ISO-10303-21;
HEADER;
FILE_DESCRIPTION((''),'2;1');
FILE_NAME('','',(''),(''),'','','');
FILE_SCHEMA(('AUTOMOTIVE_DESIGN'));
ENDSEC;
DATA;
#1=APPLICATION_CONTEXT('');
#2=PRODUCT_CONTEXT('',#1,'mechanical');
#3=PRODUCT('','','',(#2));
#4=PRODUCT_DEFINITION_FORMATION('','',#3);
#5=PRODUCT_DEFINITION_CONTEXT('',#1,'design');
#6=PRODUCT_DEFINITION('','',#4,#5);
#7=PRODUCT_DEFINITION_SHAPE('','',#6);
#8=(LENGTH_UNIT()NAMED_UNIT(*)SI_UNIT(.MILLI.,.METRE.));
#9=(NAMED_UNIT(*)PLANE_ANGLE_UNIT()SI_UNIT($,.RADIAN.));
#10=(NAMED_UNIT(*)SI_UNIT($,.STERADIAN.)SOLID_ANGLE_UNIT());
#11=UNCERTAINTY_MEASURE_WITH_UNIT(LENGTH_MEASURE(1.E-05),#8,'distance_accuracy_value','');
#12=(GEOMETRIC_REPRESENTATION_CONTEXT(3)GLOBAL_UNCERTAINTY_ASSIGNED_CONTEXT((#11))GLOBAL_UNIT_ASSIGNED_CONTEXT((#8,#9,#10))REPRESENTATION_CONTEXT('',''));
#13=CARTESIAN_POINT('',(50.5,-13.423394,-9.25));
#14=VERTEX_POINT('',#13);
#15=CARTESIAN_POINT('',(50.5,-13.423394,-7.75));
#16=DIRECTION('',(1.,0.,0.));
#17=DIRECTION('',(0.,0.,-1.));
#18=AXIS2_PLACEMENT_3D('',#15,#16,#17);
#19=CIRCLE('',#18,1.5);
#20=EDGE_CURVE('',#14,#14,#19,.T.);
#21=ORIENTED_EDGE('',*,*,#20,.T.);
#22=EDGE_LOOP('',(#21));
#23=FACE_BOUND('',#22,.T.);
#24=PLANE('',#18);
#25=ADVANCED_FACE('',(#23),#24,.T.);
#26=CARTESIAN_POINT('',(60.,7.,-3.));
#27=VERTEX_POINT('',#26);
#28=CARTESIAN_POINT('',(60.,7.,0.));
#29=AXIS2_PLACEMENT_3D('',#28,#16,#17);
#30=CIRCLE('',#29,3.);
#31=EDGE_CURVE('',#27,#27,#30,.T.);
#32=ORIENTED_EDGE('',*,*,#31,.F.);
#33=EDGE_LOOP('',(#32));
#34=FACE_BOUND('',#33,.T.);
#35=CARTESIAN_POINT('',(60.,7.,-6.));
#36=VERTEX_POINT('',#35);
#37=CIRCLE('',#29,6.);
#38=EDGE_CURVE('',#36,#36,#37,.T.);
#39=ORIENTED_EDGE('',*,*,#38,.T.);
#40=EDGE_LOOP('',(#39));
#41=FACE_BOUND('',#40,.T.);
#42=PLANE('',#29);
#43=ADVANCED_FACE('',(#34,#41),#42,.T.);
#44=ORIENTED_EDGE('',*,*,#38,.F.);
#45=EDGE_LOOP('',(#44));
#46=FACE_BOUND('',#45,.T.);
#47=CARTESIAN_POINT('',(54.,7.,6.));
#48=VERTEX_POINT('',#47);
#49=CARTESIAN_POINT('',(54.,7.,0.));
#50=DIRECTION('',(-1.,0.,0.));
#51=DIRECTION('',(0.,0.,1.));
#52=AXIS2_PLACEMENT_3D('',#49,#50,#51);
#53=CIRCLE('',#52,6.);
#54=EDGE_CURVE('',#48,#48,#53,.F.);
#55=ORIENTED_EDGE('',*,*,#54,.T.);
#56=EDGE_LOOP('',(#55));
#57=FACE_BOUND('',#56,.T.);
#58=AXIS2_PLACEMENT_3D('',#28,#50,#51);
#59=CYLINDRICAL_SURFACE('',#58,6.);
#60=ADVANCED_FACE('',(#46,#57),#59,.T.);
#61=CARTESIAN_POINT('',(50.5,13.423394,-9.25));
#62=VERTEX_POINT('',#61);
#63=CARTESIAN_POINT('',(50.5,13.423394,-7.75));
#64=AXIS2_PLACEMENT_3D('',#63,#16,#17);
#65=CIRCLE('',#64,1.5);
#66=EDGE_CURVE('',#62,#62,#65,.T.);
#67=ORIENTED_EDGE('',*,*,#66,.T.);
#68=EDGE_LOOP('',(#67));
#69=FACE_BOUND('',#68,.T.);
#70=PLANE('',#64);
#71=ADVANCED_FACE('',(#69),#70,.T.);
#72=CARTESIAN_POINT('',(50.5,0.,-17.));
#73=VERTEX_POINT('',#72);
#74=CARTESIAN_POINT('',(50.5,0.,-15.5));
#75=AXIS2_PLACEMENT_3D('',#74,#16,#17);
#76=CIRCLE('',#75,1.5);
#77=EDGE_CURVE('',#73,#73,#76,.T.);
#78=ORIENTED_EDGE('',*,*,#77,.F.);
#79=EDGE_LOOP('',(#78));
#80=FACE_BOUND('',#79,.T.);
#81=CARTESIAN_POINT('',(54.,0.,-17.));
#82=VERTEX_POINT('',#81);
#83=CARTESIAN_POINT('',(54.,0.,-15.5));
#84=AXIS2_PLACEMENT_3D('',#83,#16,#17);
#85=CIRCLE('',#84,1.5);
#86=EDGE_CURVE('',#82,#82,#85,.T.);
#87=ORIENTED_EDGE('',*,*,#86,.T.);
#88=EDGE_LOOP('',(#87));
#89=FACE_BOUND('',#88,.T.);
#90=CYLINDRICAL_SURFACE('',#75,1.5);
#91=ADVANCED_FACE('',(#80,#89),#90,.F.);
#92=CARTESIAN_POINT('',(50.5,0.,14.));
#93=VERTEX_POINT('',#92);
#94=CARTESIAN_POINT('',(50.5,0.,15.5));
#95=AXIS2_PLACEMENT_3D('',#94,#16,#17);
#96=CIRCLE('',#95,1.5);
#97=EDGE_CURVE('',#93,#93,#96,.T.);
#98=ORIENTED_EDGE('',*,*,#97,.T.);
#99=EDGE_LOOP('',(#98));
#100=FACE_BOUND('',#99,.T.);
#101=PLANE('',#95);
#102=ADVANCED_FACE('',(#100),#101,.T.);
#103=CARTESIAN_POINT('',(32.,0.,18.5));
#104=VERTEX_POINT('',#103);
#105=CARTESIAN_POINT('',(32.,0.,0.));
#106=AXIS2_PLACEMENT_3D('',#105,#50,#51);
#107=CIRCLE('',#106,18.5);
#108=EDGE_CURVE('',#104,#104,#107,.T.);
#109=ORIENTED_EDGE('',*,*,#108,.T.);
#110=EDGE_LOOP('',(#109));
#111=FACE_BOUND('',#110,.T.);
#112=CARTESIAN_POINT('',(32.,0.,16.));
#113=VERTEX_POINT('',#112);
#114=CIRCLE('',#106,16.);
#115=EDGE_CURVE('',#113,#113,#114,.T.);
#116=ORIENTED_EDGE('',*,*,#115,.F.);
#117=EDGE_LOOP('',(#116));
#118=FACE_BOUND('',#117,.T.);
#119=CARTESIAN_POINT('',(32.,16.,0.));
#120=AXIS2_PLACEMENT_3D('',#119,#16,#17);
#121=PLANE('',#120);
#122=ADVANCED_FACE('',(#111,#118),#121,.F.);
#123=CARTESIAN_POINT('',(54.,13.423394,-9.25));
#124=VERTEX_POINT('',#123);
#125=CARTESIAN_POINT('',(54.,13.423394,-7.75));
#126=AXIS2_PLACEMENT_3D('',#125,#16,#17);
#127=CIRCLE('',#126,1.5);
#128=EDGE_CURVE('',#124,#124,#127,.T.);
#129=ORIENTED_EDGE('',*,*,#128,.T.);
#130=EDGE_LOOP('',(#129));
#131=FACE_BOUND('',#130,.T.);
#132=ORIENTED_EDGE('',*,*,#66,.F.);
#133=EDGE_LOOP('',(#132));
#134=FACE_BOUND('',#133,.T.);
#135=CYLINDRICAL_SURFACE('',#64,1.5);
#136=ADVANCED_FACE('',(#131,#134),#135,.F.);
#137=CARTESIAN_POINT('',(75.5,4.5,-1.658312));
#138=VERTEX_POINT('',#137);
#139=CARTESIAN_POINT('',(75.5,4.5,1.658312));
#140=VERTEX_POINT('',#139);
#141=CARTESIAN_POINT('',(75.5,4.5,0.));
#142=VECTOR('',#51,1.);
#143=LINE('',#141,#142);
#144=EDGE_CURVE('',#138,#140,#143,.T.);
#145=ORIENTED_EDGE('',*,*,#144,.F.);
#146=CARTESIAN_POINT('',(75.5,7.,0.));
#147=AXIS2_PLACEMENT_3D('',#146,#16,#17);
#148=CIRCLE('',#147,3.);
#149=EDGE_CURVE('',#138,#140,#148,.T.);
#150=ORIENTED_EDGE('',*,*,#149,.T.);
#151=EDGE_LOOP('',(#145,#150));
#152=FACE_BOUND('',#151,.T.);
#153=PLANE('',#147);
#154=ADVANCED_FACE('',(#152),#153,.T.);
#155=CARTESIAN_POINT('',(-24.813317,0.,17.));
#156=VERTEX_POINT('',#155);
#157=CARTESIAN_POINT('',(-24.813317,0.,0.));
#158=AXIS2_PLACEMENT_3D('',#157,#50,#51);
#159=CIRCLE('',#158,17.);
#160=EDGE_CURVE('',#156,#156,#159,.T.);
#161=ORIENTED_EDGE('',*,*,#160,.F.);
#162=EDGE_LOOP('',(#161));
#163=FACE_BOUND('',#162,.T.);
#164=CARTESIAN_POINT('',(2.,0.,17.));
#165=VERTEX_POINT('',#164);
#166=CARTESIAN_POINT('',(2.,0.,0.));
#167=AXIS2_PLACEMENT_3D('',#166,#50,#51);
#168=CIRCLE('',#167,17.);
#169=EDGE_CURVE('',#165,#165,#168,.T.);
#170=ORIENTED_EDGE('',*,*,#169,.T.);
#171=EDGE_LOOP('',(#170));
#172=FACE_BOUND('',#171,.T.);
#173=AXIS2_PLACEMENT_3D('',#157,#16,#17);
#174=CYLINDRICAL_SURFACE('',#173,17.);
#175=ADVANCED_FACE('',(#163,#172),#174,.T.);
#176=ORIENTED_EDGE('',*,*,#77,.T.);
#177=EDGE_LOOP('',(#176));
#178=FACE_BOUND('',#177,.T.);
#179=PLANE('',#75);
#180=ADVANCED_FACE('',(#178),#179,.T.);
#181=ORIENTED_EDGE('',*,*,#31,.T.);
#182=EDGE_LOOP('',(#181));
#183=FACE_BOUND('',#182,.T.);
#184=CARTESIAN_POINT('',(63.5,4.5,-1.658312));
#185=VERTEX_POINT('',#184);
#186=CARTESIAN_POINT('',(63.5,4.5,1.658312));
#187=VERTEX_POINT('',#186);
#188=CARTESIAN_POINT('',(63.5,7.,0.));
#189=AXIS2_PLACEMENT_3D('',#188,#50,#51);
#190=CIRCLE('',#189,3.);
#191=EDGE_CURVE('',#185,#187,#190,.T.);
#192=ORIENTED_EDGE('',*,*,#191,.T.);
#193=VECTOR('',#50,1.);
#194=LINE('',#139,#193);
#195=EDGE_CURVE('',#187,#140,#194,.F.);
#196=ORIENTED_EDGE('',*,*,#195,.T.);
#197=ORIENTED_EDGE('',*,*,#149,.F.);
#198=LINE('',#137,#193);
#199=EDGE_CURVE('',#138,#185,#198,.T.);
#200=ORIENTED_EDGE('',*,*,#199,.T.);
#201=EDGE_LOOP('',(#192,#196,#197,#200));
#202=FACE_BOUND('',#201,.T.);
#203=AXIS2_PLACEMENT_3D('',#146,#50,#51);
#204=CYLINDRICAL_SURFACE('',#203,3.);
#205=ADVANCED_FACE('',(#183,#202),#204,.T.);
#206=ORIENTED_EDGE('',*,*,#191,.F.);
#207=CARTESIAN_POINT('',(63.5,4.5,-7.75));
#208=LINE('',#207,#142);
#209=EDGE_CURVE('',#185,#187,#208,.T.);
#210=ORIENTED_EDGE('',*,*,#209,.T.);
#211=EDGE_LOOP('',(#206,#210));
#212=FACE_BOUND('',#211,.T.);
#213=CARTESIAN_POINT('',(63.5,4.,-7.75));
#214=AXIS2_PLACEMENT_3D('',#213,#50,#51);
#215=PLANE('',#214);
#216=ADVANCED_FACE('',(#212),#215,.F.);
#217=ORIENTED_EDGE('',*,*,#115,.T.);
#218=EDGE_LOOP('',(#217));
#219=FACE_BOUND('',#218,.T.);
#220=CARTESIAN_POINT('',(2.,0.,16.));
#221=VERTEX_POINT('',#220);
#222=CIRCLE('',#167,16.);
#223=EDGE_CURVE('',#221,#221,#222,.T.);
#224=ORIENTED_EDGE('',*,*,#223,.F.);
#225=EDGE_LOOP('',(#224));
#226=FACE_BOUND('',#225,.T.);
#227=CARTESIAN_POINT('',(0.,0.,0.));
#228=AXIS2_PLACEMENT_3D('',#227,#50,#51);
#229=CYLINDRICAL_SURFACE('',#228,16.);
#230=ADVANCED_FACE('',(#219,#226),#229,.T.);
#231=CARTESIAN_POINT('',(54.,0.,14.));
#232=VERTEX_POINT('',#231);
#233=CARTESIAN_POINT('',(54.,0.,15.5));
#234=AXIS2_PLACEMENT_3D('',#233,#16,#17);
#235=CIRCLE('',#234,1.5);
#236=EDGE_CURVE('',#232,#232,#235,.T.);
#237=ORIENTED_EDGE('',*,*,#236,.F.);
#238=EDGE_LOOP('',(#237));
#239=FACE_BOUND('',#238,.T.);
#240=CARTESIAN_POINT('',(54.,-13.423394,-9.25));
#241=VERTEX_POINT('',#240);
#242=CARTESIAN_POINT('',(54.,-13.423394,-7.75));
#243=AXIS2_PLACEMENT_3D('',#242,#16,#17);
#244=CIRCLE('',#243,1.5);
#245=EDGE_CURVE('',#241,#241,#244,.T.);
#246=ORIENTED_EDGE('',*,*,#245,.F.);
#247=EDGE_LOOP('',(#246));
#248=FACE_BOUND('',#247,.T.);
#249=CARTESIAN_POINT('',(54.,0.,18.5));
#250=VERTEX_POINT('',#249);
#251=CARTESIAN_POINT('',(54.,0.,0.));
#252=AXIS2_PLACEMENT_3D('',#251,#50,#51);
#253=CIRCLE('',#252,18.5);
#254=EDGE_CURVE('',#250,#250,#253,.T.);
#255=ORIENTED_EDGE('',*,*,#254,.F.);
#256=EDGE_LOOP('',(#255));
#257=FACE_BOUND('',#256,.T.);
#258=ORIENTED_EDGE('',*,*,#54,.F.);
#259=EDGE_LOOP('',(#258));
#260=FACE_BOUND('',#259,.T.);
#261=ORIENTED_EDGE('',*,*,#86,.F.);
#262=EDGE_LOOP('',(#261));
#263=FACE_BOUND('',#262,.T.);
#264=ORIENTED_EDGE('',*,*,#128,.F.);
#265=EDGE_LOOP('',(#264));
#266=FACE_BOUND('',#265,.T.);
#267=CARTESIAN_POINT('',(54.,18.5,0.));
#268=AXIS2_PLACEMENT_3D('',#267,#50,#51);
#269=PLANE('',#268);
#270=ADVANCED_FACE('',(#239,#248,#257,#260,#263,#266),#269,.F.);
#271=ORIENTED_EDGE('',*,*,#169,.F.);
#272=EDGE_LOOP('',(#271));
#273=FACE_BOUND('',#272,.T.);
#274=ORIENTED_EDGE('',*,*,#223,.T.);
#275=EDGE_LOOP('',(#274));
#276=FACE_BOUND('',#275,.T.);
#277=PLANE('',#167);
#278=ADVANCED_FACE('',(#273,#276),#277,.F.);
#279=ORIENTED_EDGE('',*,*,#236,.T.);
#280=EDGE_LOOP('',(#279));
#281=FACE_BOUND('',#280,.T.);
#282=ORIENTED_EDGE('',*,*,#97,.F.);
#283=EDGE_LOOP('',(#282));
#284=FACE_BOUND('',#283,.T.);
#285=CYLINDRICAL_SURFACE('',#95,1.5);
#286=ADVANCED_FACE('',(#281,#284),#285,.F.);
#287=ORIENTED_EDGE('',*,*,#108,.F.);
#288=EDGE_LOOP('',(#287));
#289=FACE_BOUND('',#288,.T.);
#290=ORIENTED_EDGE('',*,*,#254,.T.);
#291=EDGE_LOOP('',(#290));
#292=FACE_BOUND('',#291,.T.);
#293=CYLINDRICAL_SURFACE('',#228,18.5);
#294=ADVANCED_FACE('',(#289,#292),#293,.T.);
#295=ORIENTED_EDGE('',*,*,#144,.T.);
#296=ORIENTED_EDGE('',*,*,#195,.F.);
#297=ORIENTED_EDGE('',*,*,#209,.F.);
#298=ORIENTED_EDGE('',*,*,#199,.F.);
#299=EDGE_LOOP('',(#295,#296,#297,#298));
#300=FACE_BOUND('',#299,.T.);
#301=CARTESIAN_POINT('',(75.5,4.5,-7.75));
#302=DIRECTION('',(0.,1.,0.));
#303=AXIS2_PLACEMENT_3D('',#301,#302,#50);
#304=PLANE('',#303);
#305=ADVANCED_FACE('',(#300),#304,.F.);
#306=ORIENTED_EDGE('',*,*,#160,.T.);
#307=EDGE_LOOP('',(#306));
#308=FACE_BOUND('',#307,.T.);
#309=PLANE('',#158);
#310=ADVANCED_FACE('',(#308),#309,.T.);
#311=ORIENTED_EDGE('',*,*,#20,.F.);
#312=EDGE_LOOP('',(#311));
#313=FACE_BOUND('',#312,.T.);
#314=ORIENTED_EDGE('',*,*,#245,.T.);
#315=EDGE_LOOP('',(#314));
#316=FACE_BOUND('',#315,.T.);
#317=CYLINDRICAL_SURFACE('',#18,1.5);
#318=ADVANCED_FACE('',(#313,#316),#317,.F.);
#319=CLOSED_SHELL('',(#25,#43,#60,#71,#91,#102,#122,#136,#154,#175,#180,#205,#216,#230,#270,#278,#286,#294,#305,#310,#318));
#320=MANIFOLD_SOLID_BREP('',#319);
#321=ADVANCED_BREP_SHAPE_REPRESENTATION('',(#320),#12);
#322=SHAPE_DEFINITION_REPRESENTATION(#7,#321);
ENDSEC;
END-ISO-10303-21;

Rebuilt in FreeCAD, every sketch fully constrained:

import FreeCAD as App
import Part
import Sketcher
from FreeCAD import Vector


def add_polygon(sketch, points):
    """Adds a closed chain of lines whose ends are joined by coincident constraints."""
    first, n = sketch.GeometryCount, len(points)
    for a, b in zip(points, points[1:] + points[:1]):
        sketch.addGeometry(Part.LineSegment(App.Vector(*a, 0), App.Vector(*b, 0)), False)
    for i in range(n):
        sketch.addConstraint(Sketcher.Constraint("Coincident", first + i, 2, first + (i + 1) % n, 1))

doc = App.newDocument("Part")
body = doc.addObject("PartDesign::Body", "Body")

# Sketch on XY plane
sketch1 = body.newObject("Sketcher::SketchObject", "Sketch")
sketch1.AttachmentSupport = (doc.getObject("XY_Plane"), [""])
sketch1.MapMode = "FlatFace"
add_polygon(sketch1, [(0, 2), (0, 0), (54, 0), (54, 18.5), (32, 18.5), (32, 16), (2, 16), (2, 2)])  # lines 0-7
sketch1.addConstraint([
    Sketcher.Constraint("Vertical", 0),
    Sketcher.Constraint("Horizontal", 1),
    Sketcher.Constraint("Vertical", 2),
    Sketcher.Constraint("Horizontal", 3),
    Sketcher.Constraint("Vertical", 4),
    Sketcher.Constraint("Horizontal", 5),
    Sketcher.Constraint("Vertical", 6),
    Sketcher.Constraint("Horizontal", 7),
    Sketcher.Constraint("Coincident", 0, 2, -1, 1),
    Sketcher.Constraint("Equal", 7, 0),
    Sketcher.Constraint("DistanceX", 1, 1, 1, 2, 54.0),
    Sketcher.Constraint("DistanceX", 3, 2, 3, 1, 22.0),
    Sketcher.Constraint("DistanceX", 5, 2, 5, 1, 30.0),
    Sketcher.Constraint("DistanceY", 6, 2, 6, 1, 14.0),
    Sketcher.Constraint("DistanceY", 2, 1, 2, 2, 18.5),
])
revolution = body.newObject("PartDesign::Revolution", "Revolution")
revolution.Profile = sketch1
revolution.ReferenceAxis = (sketch1, ["H_Axis"])
revolution.Angle = 360

# Sketch on YZ plane
sketch2 = body.newObject("Sketcher::SketchObject", "Sketch001")
sketch2.AttachmentSupport = (doc.getObject("YZ_Plane"), [""])
sketch2.MapMode = "FlatFace"
sketch2.AttachmentOffset = App.Placement(Vector(0, 0, 54), App.Rotation())
sketch2.addGeometry(Part.Circle(Vector(7, 0, 0), Vector(0, 0, 1), 6), False)
sketch2.addConstraint([
    Sketcher.Constraint("PointOnObject", 0, 3, -1),
    Sketcher.Constraint("Diameter", 0, 12.0),
    Sketcher.Constraint("DistanceX", -1, 1, 0, 3, 7.0),
])
pad1 = body.newObject("PartDesign::Pad", "Pad")
pad1.Profile = sketch2
pad1.Length = 6

# Sketch on YZ plane
sketch3 = body.newObject("Sketcher::SketchObject", "Sketch002")
sketch3.AttachmentSupport = (doc.getObject("YZ_Plane"), [""])
sketch3.MapMode = "FlatFace"
sketch3.AttachmentOffset = App.Placement(Vector(0, 0, 60), App.Rotation())
sketch3.addGeometry(Part.Circle(Vector(7, 0, 0), Vector(0, 0, 1), 3), False)
sketch3.addConstraint([
    Sketcher.Constraint("PointOnObject", 0, 3, -1),
    Sketcher.Constraint("Diameter", 0, 6.0),
    Sketcher.Constraint("DistanceX", -1, 1, 0, 3, 7.0),
])
pad2 = body.newObject("PartDesign::Pad", "Pad001")
pad2.Profile = sketch3
pad2.Length = 15.5

# Sketch on XY plane
sketch4 = body.newObject("Sketcher::SketchObject", "Sketch003")
sketch4.AttachmentSupport = (doc.getObject("XY_Plane"), [""])
sketch4.MapMode = "FlatFace"
add_polygon(sketch4, [(63.5, 4.5), (63.5, 4), (75.5, 4), (75.5, 4.5)])  # lines 0-3
sketch4.addConstraint([
    Sketcher.Constraint("Vertical", 0),
    Sketcher.Constraint("Horizontal", 1),
    Sketcher.Constraint("Vertical", 2),
    Sketcher.Constraint("Horizontal", 3),
    Sketcher.Constraint("DistanceX", 1, 1, 1, 2, 12.0),
    Sketcher.Constraint("DistanceY", 0, 2, 0, 1, 0.5),
    Sketcher.Constraint("DistanceY", -1, 1, 0, 2, 4.0),
    Sketcher.Constraint("DistanceX", -1, 1, 0, 2, 63.5),
])
pocket1 = body.newObject("PartDesign::Pocket", "Pocket")
pocket1.Profile = sketch4
pocket1.Length = 15.5
pocket1.Midplane = True

# Sketch on YZ plane
sketch5 = body.newObject("Sketcher::SketchObject", "Sketch004")
sketch5.AttachmentSupport = (doc.getObject("YZ_Plane"), [""])
sketch5.MapMode = "FlatFace"
sketch5.AttachmentOffset = App.Placement(Vector(0, 0, 54), App.Rotation())
sketch5.addGeometry([
    Part.Circle(Vector(0, -15.5, 0), Vector(0, 0, 1), 1.5),
    Part.Circle(Vector(13.4, -7.8, 0), Vector(0, 0, 1), 1.5),
    Part.Circle(Vector(-13.4, -7.8, 0), Vector(0, 0, 1), 1.5),
    Part.Circle(Vector(0, 15.5, 0), Vector(0, 0, 1), 1.5),
], False)
sketch5.addConstraint([
    Sketcher.Constraint("Equal", 0, 1),
    Sketcher.Constraint("Equal", 1, 2),
    Sketcher.Constraint("Equal", 2, 3),
    Sketcher.Constraint("Symmetric", 0, 3, 3, 3, -1, 1),
    Sketcher.Constraint("Symmetric", 1, 3, 2, 3, -2),
    Sketcher.Constraint("PointOnObject", 0, 3, -2),
    Sketcher.Constraint("Diameter", 0, 3.0),
    Sketcher.Constraint("DistanceY", 0, 3, 3, 3, 31.0),
    Sketcher.Constraint("DistanceY", 1, 3, -1, 1, 7.75),
    Sketcher.Constraint("DistanceX", -1, 1, 1, 3, 13.423394),
])
pocket2 = body.newObject("PartDesign::Pocket", "Pocket001")
pocket2.Profile = sketch5
pocket2.Length = 3.5

# Sketch on YZ plane
sketch6 = body.newObject("Sketcher::SketchObject", "Sketch005")
sketch6.AttachmentSupport = (doc.getObject("YZ_Plane"), [""])
sketch6.MapMode = "FlatFace"
sketch6.AttachmentOffset = App.Placement(Vector(0, 0, 2), App.Rotation())
add_polygon(sketch6, [(13.4, -1.5), (12.4, -1.5), (12.4, 1.5), (13.4, 1.5)])  # lines 0-3
add_polygon(sketch6, [(-12.4, -1.5), (-13.4, -1.5), (-13.4, 1.5), (-12.4, 1.5)])  # lines 4-7
sketch6.addConstraint([
    Sketcher.Constraint("Horizontal", 0),
    Sketcher.Constraint("Vertical", 1),
    Sketcher.Constraint("Horizontal", 2),
    Sketcher.Constraint("Vertical", 3),
    Sketcher.Constraint("Horizontal", 4),
    Sketcher.Constraint("Vertical", 5),
    Sketcher.Constraint("Horizontal", 6),
    Sketcher.Constraint("Vertical", 7),
    Sketcher.Constraint("Symmetric", 2, 2, 4, 2, -1, 1),
    Sketcher.Constraint("Symmetric", 0, 2, 6, 2, -1, 1),
    Sketcher.Constraint("Horizontal", 3, 2, 4, 2),
    Sketcher.Constraint("DistanceX", 0, 2, 0, 1, 1.0),
    Sketcher.Constraint("DistanceY", 1, 1, 1, 2, 3.0),
    Sketcher.Constraint("DistanceX", -1, 1, 0, 2, 12.439058),
])
pad3 = body.newObject("PartDesign::Pad", "Pad002")
pad3.Profile = sketch6
pad3.Length = 4
pad3.Reversed = True

# Sketch on YZ plane
sketch7 = body.newObject("Sketcher::SketchObject", "Sketch006")
sketch7.AttachmentSupport = (doc.getObject("YZ_Plane"), [""])
sketch7.MapMode = "FlatFace"
sketch7.AttachmentOffset = App.Placement(Vector(0, 0, 2), App.Rotation())
sketch7.addGeometry(Part.Circle(Vector(0, 0, 0), Vector(0, 0, 1), 17), False)
sketch7.addConstraint([
    Sketcher.Constraint("Coincident", 0, 3, -1, 1),
    Sketcher.Constraint("Diameter", 0, 34.0),
])
pad4 = body.newObject("PartDesign::Pad", "Pad003")
pad4.Profile = sketch7
pad4.Length = 26.813317
pad4.Reversed = True

doc.recompute()
